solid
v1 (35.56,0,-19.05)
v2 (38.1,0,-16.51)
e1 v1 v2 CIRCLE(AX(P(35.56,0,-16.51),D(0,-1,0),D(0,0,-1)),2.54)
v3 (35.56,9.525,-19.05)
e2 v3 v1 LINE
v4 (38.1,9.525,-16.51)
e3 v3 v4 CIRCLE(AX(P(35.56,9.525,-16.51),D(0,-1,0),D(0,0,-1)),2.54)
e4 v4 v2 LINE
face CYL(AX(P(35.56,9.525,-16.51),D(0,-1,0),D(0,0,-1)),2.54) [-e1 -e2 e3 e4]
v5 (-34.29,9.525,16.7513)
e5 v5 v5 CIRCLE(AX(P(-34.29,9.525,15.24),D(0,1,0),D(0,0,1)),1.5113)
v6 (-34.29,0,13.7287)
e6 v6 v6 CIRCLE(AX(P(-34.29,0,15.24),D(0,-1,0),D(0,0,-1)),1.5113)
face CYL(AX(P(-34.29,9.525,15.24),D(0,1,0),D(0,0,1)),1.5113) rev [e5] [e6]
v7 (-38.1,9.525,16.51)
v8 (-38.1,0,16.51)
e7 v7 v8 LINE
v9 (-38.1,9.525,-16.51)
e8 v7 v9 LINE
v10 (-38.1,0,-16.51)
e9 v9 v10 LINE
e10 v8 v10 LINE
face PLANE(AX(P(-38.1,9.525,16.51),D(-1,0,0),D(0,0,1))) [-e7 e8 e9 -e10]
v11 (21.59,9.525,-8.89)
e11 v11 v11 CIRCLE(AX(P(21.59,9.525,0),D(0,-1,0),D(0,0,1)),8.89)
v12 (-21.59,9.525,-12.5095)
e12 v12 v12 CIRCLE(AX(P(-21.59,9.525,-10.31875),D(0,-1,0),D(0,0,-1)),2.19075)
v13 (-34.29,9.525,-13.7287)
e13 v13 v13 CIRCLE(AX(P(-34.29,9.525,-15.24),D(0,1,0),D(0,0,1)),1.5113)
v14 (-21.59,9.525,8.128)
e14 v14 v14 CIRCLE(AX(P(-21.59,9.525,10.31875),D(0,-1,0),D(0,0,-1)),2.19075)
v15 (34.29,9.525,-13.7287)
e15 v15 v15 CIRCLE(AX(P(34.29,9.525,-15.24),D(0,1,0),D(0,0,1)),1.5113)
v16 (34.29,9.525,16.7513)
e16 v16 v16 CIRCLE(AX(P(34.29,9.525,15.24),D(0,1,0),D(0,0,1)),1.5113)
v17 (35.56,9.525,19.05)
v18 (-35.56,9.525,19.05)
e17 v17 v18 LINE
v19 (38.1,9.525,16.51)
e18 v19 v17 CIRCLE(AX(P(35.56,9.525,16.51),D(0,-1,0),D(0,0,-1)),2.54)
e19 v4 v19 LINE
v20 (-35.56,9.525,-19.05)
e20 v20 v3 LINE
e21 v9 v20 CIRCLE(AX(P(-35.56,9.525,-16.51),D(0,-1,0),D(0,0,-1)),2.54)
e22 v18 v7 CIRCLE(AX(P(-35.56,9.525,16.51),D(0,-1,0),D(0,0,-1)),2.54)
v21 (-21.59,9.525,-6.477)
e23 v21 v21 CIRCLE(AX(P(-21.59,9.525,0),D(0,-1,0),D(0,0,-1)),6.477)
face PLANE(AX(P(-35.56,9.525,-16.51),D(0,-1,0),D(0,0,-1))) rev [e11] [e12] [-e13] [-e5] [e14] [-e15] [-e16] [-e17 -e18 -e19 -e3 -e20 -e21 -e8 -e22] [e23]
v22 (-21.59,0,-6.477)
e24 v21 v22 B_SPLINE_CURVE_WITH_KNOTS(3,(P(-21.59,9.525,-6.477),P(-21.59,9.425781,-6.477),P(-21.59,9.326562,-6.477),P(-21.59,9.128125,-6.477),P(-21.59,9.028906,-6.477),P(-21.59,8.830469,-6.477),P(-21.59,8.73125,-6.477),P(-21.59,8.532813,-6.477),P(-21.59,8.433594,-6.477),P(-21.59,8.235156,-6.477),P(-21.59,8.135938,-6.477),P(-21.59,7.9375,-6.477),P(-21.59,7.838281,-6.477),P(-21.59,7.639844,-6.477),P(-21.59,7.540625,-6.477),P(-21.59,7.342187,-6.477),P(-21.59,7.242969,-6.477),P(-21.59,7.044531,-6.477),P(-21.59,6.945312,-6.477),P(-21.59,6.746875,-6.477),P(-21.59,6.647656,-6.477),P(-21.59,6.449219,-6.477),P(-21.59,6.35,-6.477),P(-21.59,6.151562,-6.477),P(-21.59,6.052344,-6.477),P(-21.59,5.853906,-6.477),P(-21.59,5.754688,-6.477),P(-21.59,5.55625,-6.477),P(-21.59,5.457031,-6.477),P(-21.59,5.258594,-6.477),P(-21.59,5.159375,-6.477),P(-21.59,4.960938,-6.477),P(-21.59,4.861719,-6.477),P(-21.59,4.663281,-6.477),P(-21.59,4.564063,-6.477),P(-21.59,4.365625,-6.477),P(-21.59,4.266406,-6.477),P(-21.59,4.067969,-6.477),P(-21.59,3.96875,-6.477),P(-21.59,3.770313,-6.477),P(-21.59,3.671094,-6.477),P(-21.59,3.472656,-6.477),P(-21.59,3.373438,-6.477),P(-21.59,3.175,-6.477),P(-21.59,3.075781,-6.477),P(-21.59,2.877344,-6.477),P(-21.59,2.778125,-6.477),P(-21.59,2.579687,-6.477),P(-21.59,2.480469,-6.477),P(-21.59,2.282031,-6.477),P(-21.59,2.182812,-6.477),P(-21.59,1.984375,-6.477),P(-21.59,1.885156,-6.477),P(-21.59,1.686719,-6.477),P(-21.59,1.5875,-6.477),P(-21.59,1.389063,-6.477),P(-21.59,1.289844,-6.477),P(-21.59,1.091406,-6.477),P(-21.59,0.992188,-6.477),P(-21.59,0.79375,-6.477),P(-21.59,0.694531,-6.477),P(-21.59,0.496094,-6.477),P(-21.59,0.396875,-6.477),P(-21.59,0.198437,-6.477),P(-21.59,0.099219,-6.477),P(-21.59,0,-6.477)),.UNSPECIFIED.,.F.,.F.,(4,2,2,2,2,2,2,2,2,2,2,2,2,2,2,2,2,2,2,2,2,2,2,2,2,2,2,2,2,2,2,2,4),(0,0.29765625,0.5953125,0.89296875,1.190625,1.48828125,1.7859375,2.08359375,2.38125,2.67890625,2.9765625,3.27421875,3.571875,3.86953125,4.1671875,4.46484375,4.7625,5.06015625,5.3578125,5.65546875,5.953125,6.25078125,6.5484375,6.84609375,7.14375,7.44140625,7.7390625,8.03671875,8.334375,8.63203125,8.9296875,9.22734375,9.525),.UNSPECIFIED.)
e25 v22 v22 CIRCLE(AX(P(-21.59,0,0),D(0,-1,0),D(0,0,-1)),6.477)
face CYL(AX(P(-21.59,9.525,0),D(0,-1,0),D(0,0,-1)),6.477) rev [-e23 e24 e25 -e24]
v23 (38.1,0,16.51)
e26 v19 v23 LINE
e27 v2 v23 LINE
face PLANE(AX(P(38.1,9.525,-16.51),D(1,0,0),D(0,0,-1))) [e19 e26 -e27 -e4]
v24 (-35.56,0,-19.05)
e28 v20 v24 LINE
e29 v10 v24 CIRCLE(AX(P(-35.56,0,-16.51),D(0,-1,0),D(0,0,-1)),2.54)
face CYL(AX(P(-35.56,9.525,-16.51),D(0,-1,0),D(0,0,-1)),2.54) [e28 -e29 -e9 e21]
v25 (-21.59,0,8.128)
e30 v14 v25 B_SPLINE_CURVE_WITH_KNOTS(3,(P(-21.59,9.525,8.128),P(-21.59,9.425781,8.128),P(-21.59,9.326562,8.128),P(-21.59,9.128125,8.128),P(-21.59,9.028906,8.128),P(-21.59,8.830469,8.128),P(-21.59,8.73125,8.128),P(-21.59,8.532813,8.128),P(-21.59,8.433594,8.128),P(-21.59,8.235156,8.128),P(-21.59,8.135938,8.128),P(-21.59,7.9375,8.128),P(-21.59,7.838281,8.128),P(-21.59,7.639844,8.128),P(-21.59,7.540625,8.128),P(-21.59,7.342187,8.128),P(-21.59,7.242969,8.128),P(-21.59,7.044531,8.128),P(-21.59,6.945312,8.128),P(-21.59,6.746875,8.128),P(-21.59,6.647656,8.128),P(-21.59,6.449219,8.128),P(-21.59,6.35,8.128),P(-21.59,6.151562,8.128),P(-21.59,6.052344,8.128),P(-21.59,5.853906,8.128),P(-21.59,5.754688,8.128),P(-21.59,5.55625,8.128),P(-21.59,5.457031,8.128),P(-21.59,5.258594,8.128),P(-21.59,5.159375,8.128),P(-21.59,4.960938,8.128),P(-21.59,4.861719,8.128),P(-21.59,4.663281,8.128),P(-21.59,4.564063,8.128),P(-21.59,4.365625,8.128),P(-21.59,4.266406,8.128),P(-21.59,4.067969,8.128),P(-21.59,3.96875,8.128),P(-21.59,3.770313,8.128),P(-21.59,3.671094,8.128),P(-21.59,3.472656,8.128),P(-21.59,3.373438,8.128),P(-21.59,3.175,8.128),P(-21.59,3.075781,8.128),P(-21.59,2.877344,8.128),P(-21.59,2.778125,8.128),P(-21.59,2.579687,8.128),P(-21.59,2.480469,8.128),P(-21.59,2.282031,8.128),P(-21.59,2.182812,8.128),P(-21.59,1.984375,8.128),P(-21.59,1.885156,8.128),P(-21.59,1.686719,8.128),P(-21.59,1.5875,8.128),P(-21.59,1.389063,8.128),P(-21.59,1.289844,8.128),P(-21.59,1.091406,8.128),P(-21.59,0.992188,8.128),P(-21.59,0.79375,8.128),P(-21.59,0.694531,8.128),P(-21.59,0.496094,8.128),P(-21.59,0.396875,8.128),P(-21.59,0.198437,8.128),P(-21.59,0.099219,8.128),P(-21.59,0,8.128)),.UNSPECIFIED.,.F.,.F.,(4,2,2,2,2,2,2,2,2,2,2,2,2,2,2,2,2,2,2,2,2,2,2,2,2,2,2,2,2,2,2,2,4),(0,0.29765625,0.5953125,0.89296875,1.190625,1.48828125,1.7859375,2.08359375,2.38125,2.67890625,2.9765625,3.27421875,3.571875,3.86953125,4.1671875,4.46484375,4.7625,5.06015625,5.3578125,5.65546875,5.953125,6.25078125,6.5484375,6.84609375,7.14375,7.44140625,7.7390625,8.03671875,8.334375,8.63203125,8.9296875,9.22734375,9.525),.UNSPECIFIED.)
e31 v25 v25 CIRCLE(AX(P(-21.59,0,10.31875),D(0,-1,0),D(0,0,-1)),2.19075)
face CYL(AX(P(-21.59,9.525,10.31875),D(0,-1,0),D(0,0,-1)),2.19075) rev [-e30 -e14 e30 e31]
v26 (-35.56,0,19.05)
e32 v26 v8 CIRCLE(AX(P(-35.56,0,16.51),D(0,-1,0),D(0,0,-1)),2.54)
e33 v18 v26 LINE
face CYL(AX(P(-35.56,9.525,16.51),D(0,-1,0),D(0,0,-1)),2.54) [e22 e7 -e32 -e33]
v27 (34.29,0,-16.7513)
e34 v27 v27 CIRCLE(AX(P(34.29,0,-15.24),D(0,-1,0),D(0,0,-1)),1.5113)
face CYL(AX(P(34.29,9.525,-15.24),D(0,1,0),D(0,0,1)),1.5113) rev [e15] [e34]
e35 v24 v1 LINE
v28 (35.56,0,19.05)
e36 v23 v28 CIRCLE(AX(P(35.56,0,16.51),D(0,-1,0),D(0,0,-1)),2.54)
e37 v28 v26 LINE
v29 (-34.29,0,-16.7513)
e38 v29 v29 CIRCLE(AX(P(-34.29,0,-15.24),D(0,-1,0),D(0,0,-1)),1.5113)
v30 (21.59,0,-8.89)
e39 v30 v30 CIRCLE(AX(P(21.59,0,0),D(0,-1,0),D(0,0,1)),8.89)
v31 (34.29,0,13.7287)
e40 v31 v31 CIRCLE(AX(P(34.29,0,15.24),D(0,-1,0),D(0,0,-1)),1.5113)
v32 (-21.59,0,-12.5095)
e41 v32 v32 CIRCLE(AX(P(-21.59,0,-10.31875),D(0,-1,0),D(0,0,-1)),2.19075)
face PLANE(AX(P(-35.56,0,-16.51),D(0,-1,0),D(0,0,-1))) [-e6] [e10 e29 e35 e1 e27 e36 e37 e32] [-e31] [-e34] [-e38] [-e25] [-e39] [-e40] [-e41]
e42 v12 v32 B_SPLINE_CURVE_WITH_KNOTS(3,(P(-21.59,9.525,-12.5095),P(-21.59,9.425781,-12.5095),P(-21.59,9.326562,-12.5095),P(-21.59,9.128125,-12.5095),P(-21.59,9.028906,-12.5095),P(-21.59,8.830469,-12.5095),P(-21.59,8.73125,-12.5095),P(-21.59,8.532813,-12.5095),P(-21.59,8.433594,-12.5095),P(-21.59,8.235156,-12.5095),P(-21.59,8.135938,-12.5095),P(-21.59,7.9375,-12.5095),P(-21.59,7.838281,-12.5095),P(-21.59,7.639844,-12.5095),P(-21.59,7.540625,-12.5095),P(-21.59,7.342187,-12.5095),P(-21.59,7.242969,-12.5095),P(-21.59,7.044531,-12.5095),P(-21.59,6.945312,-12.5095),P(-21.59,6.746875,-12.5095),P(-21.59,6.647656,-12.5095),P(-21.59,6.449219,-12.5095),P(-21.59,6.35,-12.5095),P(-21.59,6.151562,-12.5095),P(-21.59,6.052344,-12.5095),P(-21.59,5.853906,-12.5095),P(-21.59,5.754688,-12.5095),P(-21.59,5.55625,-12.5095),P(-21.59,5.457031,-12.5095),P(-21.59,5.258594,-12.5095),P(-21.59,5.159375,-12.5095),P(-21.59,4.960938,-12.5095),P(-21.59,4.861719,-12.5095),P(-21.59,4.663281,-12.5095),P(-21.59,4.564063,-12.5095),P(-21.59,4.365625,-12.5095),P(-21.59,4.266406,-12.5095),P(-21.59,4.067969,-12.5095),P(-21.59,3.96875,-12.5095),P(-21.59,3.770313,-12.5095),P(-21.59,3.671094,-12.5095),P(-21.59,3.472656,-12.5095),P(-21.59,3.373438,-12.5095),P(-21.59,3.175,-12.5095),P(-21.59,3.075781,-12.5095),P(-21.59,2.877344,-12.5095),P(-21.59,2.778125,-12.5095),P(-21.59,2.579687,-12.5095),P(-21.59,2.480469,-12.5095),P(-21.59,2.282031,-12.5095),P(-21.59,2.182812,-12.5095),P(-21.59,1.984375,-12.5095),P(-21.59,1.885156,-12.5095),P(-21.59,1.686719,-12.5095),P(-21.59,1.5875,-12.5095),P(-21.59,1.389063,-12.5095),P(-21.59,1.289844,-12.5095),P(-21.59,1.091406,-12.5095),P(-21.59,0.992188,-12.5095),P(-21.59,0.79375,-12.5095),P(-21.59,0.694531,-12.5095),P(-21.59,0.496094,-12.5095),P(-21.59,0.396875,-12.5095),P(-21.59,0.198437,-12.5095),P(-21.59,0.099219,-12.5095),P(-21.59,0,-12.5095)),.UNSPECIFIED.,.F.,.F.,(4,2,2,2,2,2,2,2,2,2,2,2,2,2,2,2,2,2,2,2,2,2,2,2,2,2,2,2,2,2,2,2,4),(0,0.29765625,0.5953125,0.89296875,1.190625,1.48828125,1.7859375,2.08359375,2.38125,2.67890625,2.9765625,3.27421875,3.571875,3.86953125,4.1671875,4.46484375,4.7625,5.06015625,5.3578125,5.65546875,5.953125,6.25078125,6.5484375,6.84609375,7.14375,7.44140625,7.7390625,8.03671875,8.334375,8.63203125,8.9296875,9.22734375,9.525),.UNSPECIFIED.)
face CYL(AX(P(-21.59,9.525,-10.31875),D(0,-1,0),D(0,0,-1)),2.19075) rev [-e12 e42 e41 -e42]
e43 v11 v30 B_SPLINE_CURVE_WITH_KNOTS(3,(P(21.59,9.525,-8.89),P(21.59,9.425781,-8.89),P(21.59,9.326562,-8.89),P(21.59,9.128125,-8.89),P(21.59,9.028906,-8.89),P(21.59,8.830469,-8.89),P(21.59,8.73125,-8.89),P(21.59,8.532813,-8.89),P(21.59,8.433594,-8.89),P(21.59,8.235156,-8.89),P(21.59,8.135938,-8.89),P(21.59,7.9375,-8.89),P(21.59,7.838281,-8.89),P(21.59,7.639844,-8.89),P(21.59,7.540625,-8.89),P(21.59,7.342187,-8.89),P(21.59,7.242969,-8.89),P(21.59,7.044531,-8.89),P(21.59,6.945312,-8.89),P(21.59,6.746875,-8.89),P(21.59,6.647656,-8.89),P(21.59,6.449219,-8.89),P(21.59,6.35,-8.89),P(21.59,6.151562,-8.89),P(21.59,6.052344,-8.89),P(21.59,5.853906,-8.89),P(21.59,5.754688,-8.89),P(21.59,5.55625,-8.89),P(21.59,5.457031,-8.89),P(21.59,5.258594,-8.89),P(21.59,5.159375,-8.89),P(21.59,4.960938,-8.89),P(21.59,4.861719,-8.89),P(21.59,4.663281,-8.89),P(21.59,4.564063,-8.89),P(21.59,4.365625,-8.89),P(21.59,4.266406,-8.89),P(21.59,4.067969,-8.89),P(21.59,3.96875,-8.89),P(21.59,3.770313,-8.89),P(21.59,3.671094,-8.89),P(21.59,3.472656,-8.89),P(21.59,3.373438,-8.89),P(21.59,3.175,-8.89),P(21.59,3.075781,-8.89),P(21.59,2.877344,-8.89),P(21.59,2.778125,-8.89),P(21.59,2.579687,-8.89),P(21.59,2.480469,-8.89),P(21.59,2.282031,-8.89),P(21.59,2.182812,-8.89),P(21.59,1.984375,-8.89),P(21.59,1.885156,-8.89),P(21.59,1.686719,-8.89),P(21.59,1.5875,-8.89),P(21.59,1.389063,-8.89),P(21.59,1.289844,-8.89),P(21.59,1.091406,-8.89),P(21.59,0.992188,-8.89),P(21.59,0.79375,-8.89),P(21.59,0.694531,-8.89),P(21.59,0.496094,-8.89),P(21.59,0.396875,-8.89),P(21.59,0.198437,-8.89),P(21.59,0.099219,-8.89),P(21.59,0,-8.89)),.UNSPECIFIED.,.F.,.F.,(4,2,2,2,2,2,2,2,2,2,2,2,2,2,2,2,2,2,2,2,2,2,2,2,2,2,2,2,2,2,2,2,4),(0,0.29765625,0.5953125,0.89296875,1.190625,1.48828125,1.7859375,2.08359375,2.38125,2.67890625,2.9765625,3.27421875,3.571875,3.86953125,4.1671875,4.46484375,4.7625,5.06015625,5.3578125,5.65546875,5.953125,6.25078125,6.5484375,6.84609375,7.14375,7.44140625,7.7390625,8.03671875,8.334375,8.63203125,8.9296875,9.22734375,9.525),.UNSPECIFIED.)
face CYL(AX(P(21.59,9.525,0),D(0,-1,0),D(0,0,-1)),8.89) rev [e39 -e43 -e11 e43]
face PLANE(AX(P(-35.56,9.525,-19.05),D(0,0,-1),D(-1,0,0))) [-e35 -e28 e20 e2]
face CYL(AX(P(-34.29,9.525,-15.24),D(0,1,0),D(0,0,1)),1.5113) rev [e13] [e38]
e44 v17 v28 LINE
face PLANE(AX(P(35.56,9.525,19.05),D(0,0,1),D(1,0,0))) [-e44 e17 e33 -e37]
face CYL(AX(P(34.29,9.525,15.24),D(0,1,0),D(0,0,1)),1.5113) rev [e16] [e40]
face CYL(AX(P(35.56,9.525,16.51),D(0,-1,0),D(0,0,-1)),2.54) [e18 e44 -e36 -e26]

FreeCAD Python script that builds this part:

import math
import FreeCAD as App
import Part
import Sketcher

V = App.Vector
Q = App.Units.Quantity

doc = App.newDocument("Part")
body = doc.addObject("PartDesign::Body", "Body")

# Sketch on XZ plane
sketch1 = body.newObject("Sketcher::SketchObject", "Sketch")
sketch1.AttachmentSupport = (doc.getObject("XZ_Plane"), [""])
sketch1.MapMode = "FlatFace"
sketch1.addGeometry([
    Part.LineSegment(V(-35.6, -19.1, 0), V(35.6, -19.1, 0)),  # 0
    Part.ArcOfCircle(Part.Circle(V(35.6, -16.5, 0), V(0, 0, 1), 2.5), math.radians(-90), math.radians(0)),  # 1
    Part.LineSegment(V(38.1, -16.5, 0), V(38.1, 16.5, 0)),  # 2
    Part.ArcOfCircle(Part.Circle(V(35.6, 16.5, 0), V(0, 0, 1), 2.5), math.radians(0), math.radians(90)),  # 3
    Part.LineSegment(V(35.6, 19.1, 0), V(-35.6, 19.1, 0)),  # 4
    Part.ArcOfCircle(Part.Circle(V(-35.6, 16.5, 0), V(0, 0, 1), 2.5), math.radians(90), math.radians(180)),  # 5
    Part.LineSegment(V(-38.1, 16.5, 0), V(-38.1, -16.5, 0)),  # 6
    Part.ArcOfCircle(Part.Circle(V(-35.6, -16.5, 0), V(0, 0, 1), 2.5), math.radians(-180), math.radians(-90)),  # 7
    Part.Circle(V(-21.6, -10.3, 0), V(0, 0, 1), 2.2),  # 8
    Part.Circle(V(-21.6, 0, 0), V(0, 0, 1), 6.5),  # 9
    Part.Circle(V(-21.6, 10.3, 0), V(0, 0, 1), 2.2),  # 10
    Part.Circle(V(21.6, 0, 0), V(0, 0, 1), 8.9),  # 11
], False)
sketch1.addConstraint([
    Sketcher.Constraint("Tangent", 0, 2, 1, 1),
    Sketcher.Constraint("Tangent", 1, 2, 2, 1),
    Sketcher.Constraint("Tangent", 2, 2, 3, 1),
    Sketcher.Constraint("Tangent", 3, 2, 4, 1),
    Sketcher.Constraint("Tangent", 4, 2, 5, 1),
    Sketcher.Constraint("Tangent", 5, 2, 6, 1),
    Sketcher.Constraint("Tangent", 6, 2, 7, 1),
    Sketcher.Constraint("Tangent", 7, 2, 0, 1),
    Sketcher.Constraint("Horizontal", 0),
    Sketcher.Constraint("Vertical", 2),
    Sketcher.Constraint("Horizontal", 4),
    Sketcher.Constraint("Vertical", 6),
    Sketcher.Constraint("Equal", 1, 3),
    Sketcher.Constraint("Equal", 3, 5),
    Sketcher.Constraint("Equal", 5, 7),
    Sketcher.Constraint("Equal", 8, 10),
    Sketcher.Constraint("Symmetric", 1, 3, 5, 3, -1, 1),
    Sketcher.Constraint("Symmetric", 9, 3, 11, 3, -1, 1),
    Sketcher.Constraint("Symmetric", 8, 3, 10, 3, -1),
    Sketcher.Constraint("PointOnObject", 9, 3, -1),
    Sketcher.Constraint("Vertical", 8, 3, 9, 3),
    Sketcher.Constraint("Diameter", 11, Q("0.7 in")),
    Sketcher.Constraint("Radius", 1, Q("0.1 in")),
    Sketcher.Constraint("Diameter", 9, Q("0.51 in")),
    Sketcher.Constraint("DistanceX", 0, 1, 0, 2, Q("2.8 in")),
    Sketcher.Constraint("DistanceY", 2, 1, 2, 2, Q("1.3 in")),
    Sketcher.Constraint("Diameter", 8, Q("0.1725 in")),
    Sketcher.Constraint("DistanceX", 9, 3, 11, 3, Q("1.7 in")),
    Sketcher.Constraint("DistanceY", 8, 3, -1, 1, Q("0.40625 in")),
])
pad1 = body.newObject("PartDesign::Pad", "Pad")
pad1.Profile = sketch1
pad1.Length = Q("0.375 in")
pad1.Reversed = True

# Sketch on XZ plane
sketch2 = body.newObject("Sketcher::SketchObject", "Sketch001")
sketch2.AttachmentSupport = (doc.getObject("XZ_Plane"), [""])
sketch2.MapMode = "FlatFace"
sketch2.AttachmentOffset = App.Placement(V(0, 0, -0.375 * 25.4), App.Rotation())
sketch2.addGeometry([
    Part.Circle(V(-34.3, -15.2, 0), V(0, 0, 1), 1.5),
    Part.Circle(V(-34.3, 15.2, 0), V(0, 0, 1), 1.5),
    Part.Circle(V(34.3, 15.2, 0), V(0, 0, 1), 1.5),
    Part.Circle(V(34.3, -15.2, 0), V(0, 0, 1), 1.5),
], False)
sketch2.addConstraint([
    Sketcher.Constraint("Equal", 0, 1),
    Sketcher.Constraint("Equal", 1, 2),
    Sketcher.Constraint("Equal", 2, 3),
    Sketcher.Constraint("Symmetric", 0, 3, 2, 3, -1, 1),
    Sketcher.Constraint("Symmetric", 1, 3, 3, 3, -1, 1),
    Sketcher.Constraint("Symmetric", 1, 3, 2, 3, -2),
    Sketcher.Constraint("Diameter", 0, Q("0.119 in")),
    Sketcher.Constraint("DistanceY", 0, 3, -1, 1, Q("0.6 in")),
    Sketcher.Constraint("DistanceX", 1, 3, 2, 3, Q("2.7 in")),
])
doc.recompute()
hole = body.newObject("PartDesign::Hole", "Hole")
hole.Profile = sketch2
hole.ThreadType = "None"
hole.Diameter = Q("0.119 in")
hole.DepthType = "Dimension"
hole.Depth = Q("0.3937 in")
hole.DrillPoint = "Angled"
hole.DrillPointAngle = 118
hole.Reversed = True

doc.recompute()
